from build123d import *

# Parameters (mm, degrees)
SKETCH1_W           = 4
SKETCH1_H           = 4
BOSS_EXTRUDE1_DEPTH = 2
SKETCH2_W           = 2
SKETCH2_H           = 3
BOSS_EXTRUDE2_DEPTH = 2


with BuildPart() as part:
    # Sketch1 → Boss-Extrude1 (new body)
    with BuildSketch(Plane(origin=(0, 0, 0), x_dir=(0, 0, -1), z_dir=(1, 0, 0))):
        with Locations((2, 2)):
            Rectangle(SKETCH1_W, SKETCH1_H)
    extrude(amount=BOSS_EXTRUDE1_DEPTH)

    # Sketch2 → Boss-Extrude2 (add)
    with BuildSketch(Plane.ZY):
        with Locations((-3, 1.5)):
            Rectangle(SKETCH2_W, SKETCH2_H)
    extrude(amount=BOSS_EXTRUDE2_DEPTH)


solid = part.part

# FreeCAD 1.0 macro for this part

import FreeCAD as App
import Part
import Sketcher

V = App.Vector
Q = App.Units.Quantity

doc = App.newDocument("Part")
body = doc.addObject("PartDesign::Body", "Body")

# Sketch on YZ plane
sketch1 = doc.addObject("Sketcher::SketchObject", "Sketch")
body.addObject(sketch1)
sketch1.AttachmentSupport = (doc.YZ_Plane, [""])
sketch1.MapMode = "FlatFace"
sketch1.addGeometry([
    Part.LineSegment(V(4, 0, 0), V(0, 0, 0)),
    Part.LineSegment(V(0, 0, 0), V(0, -4, 0)),
    Part.LineSegment(V(0, -4, 0), V(4, -4, 0)),
    Part.LineSegment(V(4, -4, 0), V(4, 0, 0)),
], False)
sketch1.addConstraint([
    Sketcher.Constraint("Coincident", 0, 2, 1, 1),
    Sketcher.Constraint("Coincident", 1, 2, 2, 1),
    Sketcher.Constraint("Coincident", 2, 2, 3, 1),
    Sketcher.Constraint("Coincident", 3, 2, 0, 1),
    Sketcher.Constraint("Horizontal", 0),
    Sketcher.Constraint("Vertical", 1),
    Sketcher.Constraint("Horizontal", 2),
    Sketcher.Constraint("Vertical", 3),
    Sketcher.Constraint("Coincident", 0, 2, -1, 1),
    Sketcher.Constraint("Equal", 2, 1),
    Sketcher.Constraint("DistanceX", 0, 2, 0, 1, Q("4 mm")),
])
pad1 = doc.addObject("PartDesign::Pad", "Pad")
body.addObject(pad1)
pad1.Profile = sketch1
pad1.Length = 2

# Sketch on YZ plane
sketch2 = doc.addObject("Sketcher::SketchObject", "Sketch001")
body.addObject(sketch2)
sketch2.AttachmentSupport = (doc.YZ_Plane, [""])
sketch2.MapMode = "FlatFace"
sketch2.addGeometry([
    Part.LineSegment(V(3, -4, 0), V(0, -4, 0)),
    Part.LineSegment(V(0, -4, 0), V(0, -2, 0)),
    Part.LineSegment(V(0, -2, 0), V(3, -2, 0)),
    Part.LineSegment(V(3, -2, 0), V(3, -4, 0)),
], False)
sketch2.addConstraint([
    Sketcher.Constraint("Coincident", 0, 2, 1, 1),
    Sketcher.Constraint("Coincident", 1, 2, 2, 1),
    Sketcher.Constraint("Coincident", 2, 2, 3, 1),
    Sketcher.Constraint("Coincident", 3, 2, 0, 1),
    Sketcher.Constraint("Horizontal", 0),
    Sketcher.Constraint("Vertical", 1),
    Sketcher.Constraint("Horizontal", 2),
    Sketcher.Constraint("Vertical", 3),
    Sketcher.Constraint("PointOnObject", 0, 2, -2),
    Sketcher.Constraint("DistanceX", 0, 2, 0, 1, Q("3 mm")),
    Sketcher.Constraint("DistanceY", 1, 1, 1, 2, Q("2 mm")),
    Sketcher.Constraint("DistanceY", 0, 2, -1, 1, Q("4 mm")),
])
pad2 = doc.addObject("PartDesign::Pad", "Pad001")
body.addObject(pad2)
pad2.Profile = sketch2
pad2.Length = 2
pad2.Reversed = True

doc.recompute()
